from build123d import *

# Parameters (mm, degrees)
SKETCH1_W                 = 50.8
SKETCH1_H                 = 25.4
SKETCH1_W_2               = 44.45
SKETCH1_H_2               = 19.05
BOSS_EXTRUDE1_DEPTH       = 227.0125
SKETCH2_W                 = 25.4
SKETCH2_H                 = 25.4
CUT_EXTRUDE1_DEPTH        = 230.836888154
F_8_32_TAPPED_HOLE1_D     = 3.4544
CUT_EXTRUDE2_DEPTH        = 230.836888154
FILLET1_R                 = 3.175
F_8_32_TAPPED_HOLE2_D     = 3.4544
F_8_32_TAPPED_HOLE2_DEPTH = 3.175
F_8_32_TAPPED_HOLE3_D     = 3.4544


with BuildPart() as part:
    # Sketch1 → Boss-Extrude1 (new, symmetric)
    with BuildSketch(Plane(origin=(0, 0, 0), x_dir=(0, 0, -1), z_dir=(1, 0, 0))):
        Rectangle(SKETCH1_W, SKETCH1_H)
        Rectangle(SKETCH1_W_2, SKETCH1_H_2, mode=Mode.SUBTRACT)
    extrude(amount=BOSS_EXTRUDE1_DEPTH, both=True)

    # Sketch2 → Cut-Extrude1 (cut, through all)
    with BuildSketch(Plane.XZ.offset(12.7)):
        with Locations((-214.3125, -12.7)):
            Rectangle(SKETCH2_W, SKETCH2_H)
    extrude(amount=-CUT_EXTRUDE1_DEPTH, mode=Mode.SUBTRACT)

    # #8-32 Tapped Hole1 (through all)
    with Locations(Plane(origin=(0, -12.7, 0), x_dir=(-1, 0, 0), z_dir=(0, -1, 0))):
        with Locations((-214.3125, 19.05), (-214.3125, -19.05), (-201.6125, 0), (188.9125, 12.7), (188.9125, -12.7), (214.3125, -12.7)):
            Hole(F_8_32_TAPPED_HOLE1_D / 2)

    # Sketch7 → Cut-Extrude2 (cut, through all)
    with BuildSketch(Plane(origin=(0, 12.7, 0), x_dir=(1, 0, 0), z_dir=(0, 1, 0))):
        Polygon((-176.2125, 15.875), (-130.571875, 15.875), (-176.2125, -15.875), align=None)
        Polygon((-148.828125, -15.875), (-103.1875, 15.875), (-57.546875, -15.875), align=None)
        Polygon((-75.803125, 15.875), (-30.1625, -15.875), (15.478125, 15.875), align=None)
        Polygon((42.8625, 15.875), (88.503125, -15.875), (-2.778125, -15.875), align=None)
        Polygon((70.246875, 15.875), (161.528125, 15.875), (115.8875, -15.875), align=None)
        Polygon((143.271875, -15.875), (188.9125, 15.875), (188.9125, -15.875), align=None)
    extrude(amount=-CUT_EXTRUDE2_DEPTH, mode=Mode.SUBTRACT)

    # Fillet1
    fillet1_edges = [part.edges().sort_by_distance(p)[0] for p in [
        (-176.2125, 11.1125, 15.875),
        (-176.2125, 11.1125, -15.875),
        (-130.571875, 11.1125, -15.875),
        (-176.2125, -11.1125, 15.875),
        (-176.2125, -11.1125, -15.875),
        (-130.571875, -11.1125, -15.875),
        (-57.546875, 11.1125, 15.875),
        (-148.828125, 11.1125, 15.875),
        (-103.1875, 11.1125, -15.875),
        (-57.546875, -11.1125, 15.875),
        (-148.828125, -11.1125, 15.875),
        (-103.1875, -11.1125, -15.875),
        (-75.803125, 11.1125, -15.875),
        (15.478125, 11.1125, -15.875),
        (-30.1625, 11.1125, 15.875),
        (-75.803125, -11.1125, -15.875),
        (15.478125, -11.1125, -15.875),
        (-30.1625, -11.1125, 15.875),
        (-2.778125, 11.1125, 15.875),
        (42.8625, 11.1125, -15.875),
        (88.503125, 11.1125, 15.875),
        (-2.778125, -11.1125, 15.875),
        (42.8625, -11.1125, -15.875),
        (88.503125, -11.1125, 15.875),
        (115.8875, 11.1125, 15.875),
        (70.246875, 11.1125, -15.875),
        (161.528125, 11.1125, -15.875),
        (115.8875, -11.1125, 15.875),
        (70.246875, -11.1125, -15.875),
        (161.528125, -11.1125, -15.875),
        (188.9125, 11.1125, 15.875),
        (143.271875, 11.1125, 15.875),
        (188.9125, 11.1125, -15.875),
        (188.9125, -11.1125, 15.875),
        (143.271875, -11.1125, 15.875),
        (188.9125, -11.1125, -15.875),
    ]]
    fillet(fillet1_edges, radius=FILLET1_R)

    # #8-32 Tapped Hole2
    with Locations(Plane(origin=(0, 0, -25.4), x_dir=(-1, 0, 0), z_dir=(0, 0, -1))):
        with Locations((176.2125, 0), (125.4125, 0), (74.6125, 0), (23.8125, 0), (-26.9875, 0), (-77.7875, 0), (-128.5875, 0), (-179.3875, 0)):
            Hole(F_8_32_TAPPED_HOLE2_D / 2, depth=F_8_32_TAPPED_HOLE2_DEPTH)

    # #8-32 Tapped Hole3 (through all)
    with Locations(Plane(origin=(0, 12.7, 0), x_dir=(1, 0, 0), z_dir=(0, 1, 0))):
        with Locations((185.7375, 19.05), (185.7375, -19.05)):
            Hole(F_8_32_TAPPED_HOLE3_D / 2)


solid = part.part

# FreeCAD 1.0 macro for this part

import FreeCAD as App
import Part
import Sketcher
Q = App.Units.Quantity


def edges_at(feature, points):
    """Names of the edges that pass closest to the given points."""
    edges = feature.Shape.Edges
    near = lambda p: min(range(len(edges)), key=lambda i: edges[i].distToShape(Part.Vertex(*p))[0])
    return sorted({f"Edge{near(p) + 1}" for p in points})

doc = App.newDocument("Part")
body = doc.addObject("PartDesign::Body", "Body")

sketch1 = body.newObject("Sketcher::SketchObject", "Sketch")
sketch1.AttachmentSupport = (doc.getObject("YZ_Plane"), [""])
sketch1.MapMode = "FlatFace"
sketch1.addGeometry([
    Part.LineSegment(App.Vector(12.7, 25.4, 0), App.Vector(-12.7, 25.4, 0)),
    Part.LineSegment(App.Vector(-12.7, 25.4, 0), App.Vector(-12.7, -25.4, 0)),
    Part.LineSegment(App.Vector(-12.7, -25.4, 0), App.Vector(12.7, -25.4, 0)),
    Part.LineSegment(App.Vector(12.7, -25.4, 0), App.Vector(12.7, 25.4, 0)),
    Part.LineSegment(App.Vector(-9.525, -22.225, 0), App.Vector(-9.525, 22.225, 0)),
    Part.LineSegment(App.Vector(-9.525, 22.225, 0), App.Vector(9.525, 22.225, 0)),
    Part.LineSegment(App.Vector(9.525, 22.225, 0), App.Vector(9.525, -22.225, 0)),
    Part.LineSegment(App.Vector(9.525, -22.225, 0), App.Vector(-9.525, -22.225, 0)),
], False)
sketch1.addConstraint([
    Sketcher.Constraint("Coincident", 0, 2, 1, 1),
    Sketcher.Constraint("Coincident", 1, 2, 2, 1),
    Sketcher.Constraint("Coincident", 2, 2, 3, 1),
    Sketcher.Constraint("Coincident", 3, 2, 0, 1),
    Sketcher.Constraint("Coincident", 4, 2, 5, 1),
    Sketcher.Constraint("Coincident", 5, 2, 6, 1),
    Sketcher.Constraint("Coincident", 6, 2, 7, 1),
    Sketcher.Constraint("Coincident", 7, 2, 4, 1),
    Sketcher.Constraint("Horizontal", 0),
    Sketcher.Constraint("Vertical", 1),
    Sketcher.Constraint("Horizontal", 2),
    Sketcher.Constraint("Vertical", 3),
    Sketcher.Constraint("Vertical", 4),
    Sketcher.Constraint("Horizontal", 5),
    Sketcher.Constraint("Vertical", 6),
    Sketcher.Constraint("Horizontal", 7),
    Sketcher.Constraint("Symmetric", 0, 2, 2, 2, -1, 1),
    Sketcher.Constraint("Symmetric", 4, 2, 6, 2, -1, 1),
    Sketcher.Constraint("DistanceX", 0, 2, 0, 1, Q("1 in")),
    Sketcher.Constraint("DistanceY", 1, 2, 1, 1, Q("2 in")),
    Sketcher.Constraint("DistanceX", 5, 1, 5, 2, Q("0.75 in")),
    Sketcher.Constraint("DistanceY", 4, 1, 4, 2, Q("1.75 in")),
])
pad1 = body.newObject("PartDesign::Pad", "Pad")
pad1.Profile = sketch1
pad1.Length = Q("17.875 in")
pad1.Midplane = True

sketch2 = body.newObject("Sketcher::SketchObject", "Sketch001")
sketch2.AttachmentSupport = (doc.getObject("XZ_Plane"), [""])
sketch2.MapMode = "FlatFace"
sketch2.AttachmentOffset = App.Placement(App.Vector(0, 0, 0.5 * 25.4), App.Rotation())
sketch2.addGeometry([
    Part.LineSegment(App.Vector(-227.0125, 0, 0), App.Vector(-227.0125, -25.4, 0)),
    Part.LineSegment(App.Vector(-227.0125, -25.4, 0), App.Vector(-201.6125, -25.4, 0)),
    Part.LineSegment(App.Vector(-201.6125, -25.4, 0), App.Vector(-201.6125, 0, 0)),
    Part.LineSegment(App.Vector(-201.6125, 0, 0), App.Vector(-227.0125, 0, 0)),
], False)
sketch2.addConstraint([
    Sketcher.Constraint("Coincident", 0, 2, 1, 1),
    Sketcher.Constraint("Coincident", 1, 2, 2, 1),
    Sketcher.Constraint("Coincident", 2, 2, 3, 1),
    Sketcher.Constraint("Coincident", 3, 2, 0, 1),
    Sketcher.Constraint("Vertical", 0),
    Sketcher.Constraint("Horizontal", 1),
    Sketcher.Constraint("Vertical", 2),
    Sketcher.Constraint("Horizontal", 3),
    Sketcher.Constraint("PointOnObject", 2, 2, -1),
    Sketcher.Constraint("Equal", 3, 0),
    Sketcher.Constraint("DistanceX", 1, 1, 1, 2, Q("1 in")),
    Sketcher.Constraint("DistanceX", 0, 2, -1, 1, Q("8.9375 in")),
])
pocket1 = body.newObject("PartDesign::Pocket", "Pocket")
pocket1.Profile = sketch2
pocket1.Type = "ThroughAll"

sketch3 = body.newObject("Sketcher::SketchObject", "Sketch002")
sketch3.AttachmentSupport = (doc.getObject("XZ_Plane"), [""])
sketch3.MapMode = "FlatFace"
sketch3.AttachmentOffset = App.Placement(App.Vector(0, 0, 0.5 * 25.4), App.Rotation())
sketch3.addGeometry([
    Part.Circle(App.Vector(214.3125, -19.05, 0), App.Vector(0, 0, 1), 1.7272),
    Part.Circle(App.Vector(214.3125, 19.05, 0), App.Vector(0, 0, 1), 1.7272),
    Part.Circle(App.Vector(201.6125, 0, 0), App.Vector(0, 0, 1), 1.7272),
    Part.Circle(App.Vector(-188.9125, -12.7, 0), App.Vector(0, 0, 1), 1.7272),
    Part.Circle(App.Vector(-188.9125, 12.7, 0), App.Vector(0, 0, 1), 1.7272),
    Part.Circle(App.Vector(-214.3125, 12.7, 0), App.Vector(0, 0, 1), 1.7272),
], False)
sketch3.addConstraint([
    Sketcher.Constraint("Equal", 0, 1),
    Sketcher.Constraint("Equal", 1, 2),
    Sketcher.Constraint("Equal", 2, 3),
    Sketcher.Constraint("Equal", 3, 4),
    Sketcher.Constraint("Equal", 4, 5),
    Sketcher.Constraint("Symmetric", 0, 3, 1, 3, -1),
    Sketcher.Constraint("Symmetric", 3, 3, 4, 3, -1),
    Sketcher.Constraint("PointOnObject", 2, 3, -1),
    Sketcher.Constraint("Horizontal", 4, 3, 5, 3),
    Sketcher.Constraint("Diameter", 0, Q("0.136 in")),
    Sketcher.Constraint("DistanceY", 3, 3, 4, 3, Q("1 in")),
    Sketcher.Constraint("DistanceX", 5, 3, 4, 3, Q("1 in")),
    Sketcher.Constraint("DistanceY", 0, 3, 1, 3, Q("1.5 in")),
    Sketcher.Constraint("DistanceX", 2, 3, 0, 3, Q("0.5 in")),
    Sketcher.Constraint("DistanceX", -1, 1, 0, 3, Q("8.4375 in")),
    Sketcher.Constraint("DistanceX", 3, 3, -1, 1, Q("7.4375 in")),
])
doc.recompute()
hole = body.newObject("PartDesign::Hole", "Hole")
hole.Profile = sketch3
hole.ThreadType = "None"
hole.Diameter = Q("0.136 in")
hole.DepthType = "ThroughAll"

sketch4 = body.newObject("Sketcher::SketchObject", "Sketch003")
sketch4.AttachmentSupport = (doc.getObject("XZ_Plane"), [""])
sketch4.MapMode = "FlatFace"
sketch4.AttachmentOffset = App.Placement(App.Vector(0, 0, -0.5 * 25.4), App.Rotation())
sketch4.addGeometry([
    Part.LineSegment(App.Vector(-130.571875, -15.875, 0), App.Vector(-176.2125, -15.875, 0)),
    Part.LineSegment(App.Vector(-176.2125, -15.875, 0), App.Vector(-176.2125, 15.875, 0)),
    Part.LineSegment(App.Vector(-176.2125, 15.875, 0), App.Vector(-130.571875, -15.875, 0)),
    Part.LineSegment(App.Vector(-103.1875, -15.875, 0), App.Vector(-148.828125, 15.875, 0)),
    Part.LineSegment(App.Vector(-148.828125, 15.875, 0), App.Vector(-57.546875, 15.875, 0)),
    Part.LineSegment(App.Vector(-57.546875, 15.875, 0), App.Vector(-103.1875, -15.875, 0)),
    Part.LineSegment(App.Vector(-75.803125, -15.875, 0), App.Vector(-30.1625, 15.875, 0)),
    Part.LineSegment(App.Vector(-30.1625, 15.875, 0), App.Vector(15.478125, -15.875, 0)),
    Part.LineSegment(App.Vector(15.478125, -15.875, 0), App.Vector(-75.803125, -15.875, 0)),
    Part.LineSegment(App.Vector(88.503125, 15.875, 0), App.Vector(42.8625, -15.875, 0)),
    Part.LineSegment(App.Vector(42.8625, -15.875, 0), App.Vector(-2.778125, 15.875, 0)),
    Part.LineSegment(App.Vector(-2.778125, 15.875, 0), App.Vector(88.503125, 15.875, 0)),
    Part.LineSegment(App.Vector(161.528125, -15.875, 0), App.Vector(70.246875, -15.875, 0)),
    Part.LineSegment(App.Vector(70.246875, -15.875, 0), App.Vector(115.8875, 15.875, 0)),
    Part.LineSegment(App.Vector(115.8875, 15.875, 0), App.Vector(161.528125, -15.875, 0)),
    Part.LineSegment(App.Vector(188.9125, -15.875, 0), App.Vector(143.271875, 15.875, 0)),
    Part.LineSegment(App.Vector(143.271875, 15.875, 0), App.Vector(188.9125, 15.875, 0)),
    Part.LineSegment(App.Vector(188.9125, 15.875, 0), App.Vector(188.9125, -15.875, 0)),
], False)
sketch4.addConstraint([
    Sketcher.Constraint("Coincident", 0, 2, 1, 1),
    Sketcher.Constraint("Coincident", 1, 2, 2, 1),
    Sketcher.Constraint("Coincident", 2, 2, 0, 1),
    Sketcher.Constraint("Coincident", 3, 2, 4, 1),
    Sketcher.Constraint("Coincident", 4, 2, 5, 1),
    Sketcher.Constraint("Coincident", 5, 2, 3, 1),
    Sketcher.Constraint("Coincident", 6, 2, 7, 1),
    Sketcher.Constraint("Coincident", 7, 2, 8, 1),
    Sketcher.Constraint("Coincident", 8, 2, 6, 1),
    Sketcher.Constraint("Coincident", 9, 2, 10, 1),
    Sketcher.Constraint("Coincident", 10, 2, 11, 1),
    Sketcher.Constraint("Coincident", 11, 2, 9, 1),
    Sketcher.Constraint("Coincident", 12, 2, 13, 1),
    Sketcher.Constraint("Coincident", 13, 2, 14, 1),
    Sketcher.Constraint("Coincident", 14, 2, 12, 1),
    Sketcher.Constraint("Coincident", 15, 2, 16, 1),
    Sketcher.Constraint("Coincident", 16, 2, 17, 1),
    Sketcher.Constraint("Coincident", 17, 2, 15, 1),
    Sketcher.Constraint("Horizontal", 0),
    Sketcher.Constraint("Vertical", 1),
    Sketcher.Constraint("Horizontal", 4),
    Sketcher.Constraint("Horizontal", 8),
    Sketcher.Constraint("Horizontal", 11),
    Sketcher.Constraint("Horizontal", 12),
    Sketcher.Constraint("Horizontal", 16),
    Sketcher.Constraint("Vertical", 17),
    Sketcher.Constraint("Parallel", 2, 3),
    Sketcher.Constraint("Parallel", 5, 6),
    Sketcher.Constraint("Parallel", 3, 7),
    Sketcher.Constraint("Parallel", 6, 9),
    Sketcher.Constraint("Parallel", 7, 10),
    Sketcher.Constraint("Parallel", 9, 13),
    Sketcher.Constraint("Parallel", 10, 14),
    Sketcher.Constraint("Parallel", 14, 15),
    Sketcher.Constraint("Horizontal", 1, 2, 3, 2),
    Sketcher.Constraint("Horizontal", 2, 2, 5, 2),
    Sketcher.Constraint("Horizontal", 4, 2, 6, 2),
    Sketcher.Constraint("Horizontal", 5, 2, 7, 2),
    Sketcher.Constraint("Horizontal", 8, 2, 9, 2),
    Sketcher.Constraint("Horizontal", 6, 2, 10, 2),
    Sketcher.Constraint("Horizontal", 9, 2, 12, 2),
    Sketcher.Constraint("Horizontal", 11, 2, 13, 2),
    Sketcher.Constraint("Horizontal", 13, 2, 15, 2),
    Sketcher.Constraint("Horizontal", 14, 2, 17, 2),
    Sketcher.Constraint("Equal", 3, 5),
    Sketcher.Constraint("DistanceY", 1, 1, 1, 2, Q("1.25 in")),
    Sketcher.Constraint("DistanceX", 0, 2, 0, 1, Q("1.796875 in")),
    Sketcher.Constraint("DistanceX", 1, 2, 6, 2, Q("5.75 in")),
    Sketcher.Constraint("DistanceX", 5, 2, 9, 2, Q("5.75 in")),
    Sketcher.Constraint("DistanceX", 7, 2, 14, 2, Q("5.75 in")),
    Sketcher.Constraint("DistanceX", 0, 2, -1, 1, Q("6.9375 in")),
    Sketcher.Constraint("DistanceY", 0, 2, -1, 1, Q("0.625 in")),
    Sketcher.Constraint("DistanceX", 3, 2, -1, 1, Q("5.859375 in")),
    Sketcher.Constraint("DistanceX", -1, 1, 15, 2, Q("5.640625 in")),
])
pocket2 = body.newObject("PartDesign::Pocket", "Pocket001")
pocket2.Profile = sketch4
pocket2.Type = "ThroughAll"
pocket2.Reversed = True
doc.recompute()

fillet = body.newObject("PartDesign::Fillet", "Fillet")
fillet.Base = (pocket2, edges_at(pocket2, [
    (-176.213, 11.113, 15.875),
    (-176.213, 11.113, -15.875),
    (-130.572, 11.113, -15.875),
    (-176.213, -11.113, 15.875),
    (-176.213, -11.113, -15.875),
    (-130.572, -11.113, -15.875),
    (-57.547, 11.113, 15.875),
    (-148.828, 11.113, 15.875),
    (-103.188, 11.113, -15.875),
    (-57.547, -11.113, 15.875),
    (-148.828, -11.113, 15.875),
    (-103.188, -11.113, -15.875),
    (-75.803, 11.113, -15.875),
    (15.478, 11.113, -15.875),
    (-30.163, 11.113, 15.875),
    (-75.803, -11.113, -15.875),
    (15.478, -11.113, -15.875),
    (-30.163, -11.113, 15.875),
    (-2.778, 11.113, 15.875),
    (42.862, 11.113, -15.875),
    (88.503, 11.113, 15.875),
    (-2.778, -11.113, 15.875),
    (42.862, -11.113, -15.875),
    (88.503, -11.113, 15.875),
    (115.888, 11.113, 15.875),
    (70.247, 11.113, -15.875),
    (161.528, 11.113, -15.875),
    (115.888, -11.113, 15.875),
    (70.247, -11.113, -15.875),
    (161.528, -11.113, -15.875),
    (188.912, 11.113, 15.875),
    (143.272, 11.113, 15.875),
    (188.912, 11.113, -15.875),
    (188.912, -11.113, 15.875),
    (143.272, -11.113, 15.875),
    (188.912, -11.113, -15.875),
]))
fillet.Radius = Q("0.125 in")

sketch5 = body.newObject("Sketcher::SketchObject", "Sketch004")
sketch5.AttachmentSupport = (doc.getObject("XY_Plane"), [""])
sketch5.MapMode = "FlatFace"
sketch5.AttachmentOffset = App.Placement(App.Vector(0, 0, -1 * 25.4), App.Rotation())
sketch5.addGeometry([
    Part.Circle(App.Vector(-176.2125, 0, 0), App.Vector(0, 0, 1), 1.7272),
    Part.Circle(App.Vector(-125.4125, 0, 0), App.Vector(0, 0, 1), 1.7272),
    Part.Circle(App.Vector(-74.6125, 0, 0), App.Vector(0, 0, 1), 1.7272),
    Part.Circle(App.Vector(-23.8125, 0, 0), App.Vector(0, 0, 1), 1.7272),
    Part.Circle(App.Vector(26.9875, 0, 0), App.Vector(0, 0, 1), 1.7272),
    Part.Circle(App.Vector(77.7875, 0, 0), App.Vector(0, 0, 1), 1.7272),
    Part.Circle(App.Vector(128.5875, 0, 0), App.Vector(0, 0, 1), 1.7272),
    Part.Circle(App.Vector(179.3875, 0, 0), App.Vector(0, 0, 1), 1.7272),
], False)
sketch5.addConstraint([
    Sketcher.Constraint("Equal", 0, 1),
    Sketcher.Constraint("Equal", 1, 2),
    Sketcher.Constraint("Equal", 2, 3),
    Sketcher.Constraint("Equal", 3, 4),
    Sketcher.Constraint("Equal", 4, 5),
    Sketcher.Constraint("Equal", 5, 6),
    Sketcher.Constraint("Equal", 6, 7),
    Sketcher.Constraint("PointOnObject", 0, 3, -1),
    Sketcher.Constraint("PointOnObject", 1, 3, -1),
    Sketcher.Constraint("PointOnObject", 2, 3, -1),
    Sketcher.Constraint("PointOnObject", 3, 3, -1),
    Sketcher.Constraint("PointOnObject", 4, 3, -1),
    Sketcher.Constraint("PointOnObject", 5, 3, -1),
    Sketcher.Constraint("PointOnObject", 6, 3, -1),
    Sketcher.Constraint("PointOnObject", 7, 3, -1),
    Sketcher.Constraint("Diameter", 0, Q("0.136 in")),
    Sketcher.Constraint("DistanceX", 0, 3, 1, 3, Q("2 in")),
    Sketcher.Constraint("DistanceX", 1, 3, 2, 3, Q("2 in")),
    Sketcher.Constraint("DistanceX", 2, 3, 3, 3, Q("2 in")),
    Sketcher.Constraint("DistanceX", 3, 3, 4, 3, Q("2 in")),
    Sketcher.Constraint("DistanceX", 4, 3, 5, 3, Q("2 in")),
    Sketcher.Constraint("DistanceX", 5, 3, 6, 3, Q("2 in")),
    Sketcher.Constraint("DistanceX", 6, 3, 7, 3, Q("2 in")),
    Sketcher.Constraint("DistanceX", 0, 3, -1, 1, Q("6.9375 in")),
])
doc.recompute()
hole2 = body.newObject("PartDesign::Hole", "Hole001")
hole2.Profile = sketch5
hole2.ThreadType = "None"
hole2.Diameter = Q("0.136 in")
hole2.DepthType = "Dimension"
hole2.Depth = Q("0.125 in")
hole2.DrillPoint = "Flat"
hole2.Reversed = True

sketch6 = body.newObject("Sketcher::SketchObject", "Sketch005")
sketch6.AttachmentSupport = (doc.getObject("XZ_Plane"), [""])
sketch6.MapMode = "FlatFace"
sketch6.AttachmentOffset = App.Placement(App.Vector(0, 0, -0.5 * 25.4), App.Rotation())
sketch6.addGeometry([
    Part.Circle(App.Vector(185.7375, -19.05, 0), App.Vector(0, 0, 1), 1.7272),
    Part.Circle(App.Vector(185.7375, 19.05, 0), App.Vector(0, 0, 1), 1.7272),
], False)
sketch6.addConstraint([
    Sketcher.Constraint("Equal", 0, 1),
    Sketcher.Constraint("Symmetric", 0, 3, 1, 3, -1),
    Sketcher.Constraint("Diameter", 0, Q("0.136 in")),
    Sketcher.Constraint("DistanceY", 0, 3, 1, 3, Q("1.5 in")),
    Sketcher.Constraint("DistanceX", -1, 1, 0, 3, Q("7.3125 in")),
])
doc.recompute()
hole3 = body.newObject("PartDesign::Hole", "Hole002")
hole3.Profile = sketch6
hole3.ThreadType = "None"
hole3.Diameter = Q("0.136 in")
hole3.DepthType = "ThroughAll"
hole3.Reversed = True

doc.recompute()
